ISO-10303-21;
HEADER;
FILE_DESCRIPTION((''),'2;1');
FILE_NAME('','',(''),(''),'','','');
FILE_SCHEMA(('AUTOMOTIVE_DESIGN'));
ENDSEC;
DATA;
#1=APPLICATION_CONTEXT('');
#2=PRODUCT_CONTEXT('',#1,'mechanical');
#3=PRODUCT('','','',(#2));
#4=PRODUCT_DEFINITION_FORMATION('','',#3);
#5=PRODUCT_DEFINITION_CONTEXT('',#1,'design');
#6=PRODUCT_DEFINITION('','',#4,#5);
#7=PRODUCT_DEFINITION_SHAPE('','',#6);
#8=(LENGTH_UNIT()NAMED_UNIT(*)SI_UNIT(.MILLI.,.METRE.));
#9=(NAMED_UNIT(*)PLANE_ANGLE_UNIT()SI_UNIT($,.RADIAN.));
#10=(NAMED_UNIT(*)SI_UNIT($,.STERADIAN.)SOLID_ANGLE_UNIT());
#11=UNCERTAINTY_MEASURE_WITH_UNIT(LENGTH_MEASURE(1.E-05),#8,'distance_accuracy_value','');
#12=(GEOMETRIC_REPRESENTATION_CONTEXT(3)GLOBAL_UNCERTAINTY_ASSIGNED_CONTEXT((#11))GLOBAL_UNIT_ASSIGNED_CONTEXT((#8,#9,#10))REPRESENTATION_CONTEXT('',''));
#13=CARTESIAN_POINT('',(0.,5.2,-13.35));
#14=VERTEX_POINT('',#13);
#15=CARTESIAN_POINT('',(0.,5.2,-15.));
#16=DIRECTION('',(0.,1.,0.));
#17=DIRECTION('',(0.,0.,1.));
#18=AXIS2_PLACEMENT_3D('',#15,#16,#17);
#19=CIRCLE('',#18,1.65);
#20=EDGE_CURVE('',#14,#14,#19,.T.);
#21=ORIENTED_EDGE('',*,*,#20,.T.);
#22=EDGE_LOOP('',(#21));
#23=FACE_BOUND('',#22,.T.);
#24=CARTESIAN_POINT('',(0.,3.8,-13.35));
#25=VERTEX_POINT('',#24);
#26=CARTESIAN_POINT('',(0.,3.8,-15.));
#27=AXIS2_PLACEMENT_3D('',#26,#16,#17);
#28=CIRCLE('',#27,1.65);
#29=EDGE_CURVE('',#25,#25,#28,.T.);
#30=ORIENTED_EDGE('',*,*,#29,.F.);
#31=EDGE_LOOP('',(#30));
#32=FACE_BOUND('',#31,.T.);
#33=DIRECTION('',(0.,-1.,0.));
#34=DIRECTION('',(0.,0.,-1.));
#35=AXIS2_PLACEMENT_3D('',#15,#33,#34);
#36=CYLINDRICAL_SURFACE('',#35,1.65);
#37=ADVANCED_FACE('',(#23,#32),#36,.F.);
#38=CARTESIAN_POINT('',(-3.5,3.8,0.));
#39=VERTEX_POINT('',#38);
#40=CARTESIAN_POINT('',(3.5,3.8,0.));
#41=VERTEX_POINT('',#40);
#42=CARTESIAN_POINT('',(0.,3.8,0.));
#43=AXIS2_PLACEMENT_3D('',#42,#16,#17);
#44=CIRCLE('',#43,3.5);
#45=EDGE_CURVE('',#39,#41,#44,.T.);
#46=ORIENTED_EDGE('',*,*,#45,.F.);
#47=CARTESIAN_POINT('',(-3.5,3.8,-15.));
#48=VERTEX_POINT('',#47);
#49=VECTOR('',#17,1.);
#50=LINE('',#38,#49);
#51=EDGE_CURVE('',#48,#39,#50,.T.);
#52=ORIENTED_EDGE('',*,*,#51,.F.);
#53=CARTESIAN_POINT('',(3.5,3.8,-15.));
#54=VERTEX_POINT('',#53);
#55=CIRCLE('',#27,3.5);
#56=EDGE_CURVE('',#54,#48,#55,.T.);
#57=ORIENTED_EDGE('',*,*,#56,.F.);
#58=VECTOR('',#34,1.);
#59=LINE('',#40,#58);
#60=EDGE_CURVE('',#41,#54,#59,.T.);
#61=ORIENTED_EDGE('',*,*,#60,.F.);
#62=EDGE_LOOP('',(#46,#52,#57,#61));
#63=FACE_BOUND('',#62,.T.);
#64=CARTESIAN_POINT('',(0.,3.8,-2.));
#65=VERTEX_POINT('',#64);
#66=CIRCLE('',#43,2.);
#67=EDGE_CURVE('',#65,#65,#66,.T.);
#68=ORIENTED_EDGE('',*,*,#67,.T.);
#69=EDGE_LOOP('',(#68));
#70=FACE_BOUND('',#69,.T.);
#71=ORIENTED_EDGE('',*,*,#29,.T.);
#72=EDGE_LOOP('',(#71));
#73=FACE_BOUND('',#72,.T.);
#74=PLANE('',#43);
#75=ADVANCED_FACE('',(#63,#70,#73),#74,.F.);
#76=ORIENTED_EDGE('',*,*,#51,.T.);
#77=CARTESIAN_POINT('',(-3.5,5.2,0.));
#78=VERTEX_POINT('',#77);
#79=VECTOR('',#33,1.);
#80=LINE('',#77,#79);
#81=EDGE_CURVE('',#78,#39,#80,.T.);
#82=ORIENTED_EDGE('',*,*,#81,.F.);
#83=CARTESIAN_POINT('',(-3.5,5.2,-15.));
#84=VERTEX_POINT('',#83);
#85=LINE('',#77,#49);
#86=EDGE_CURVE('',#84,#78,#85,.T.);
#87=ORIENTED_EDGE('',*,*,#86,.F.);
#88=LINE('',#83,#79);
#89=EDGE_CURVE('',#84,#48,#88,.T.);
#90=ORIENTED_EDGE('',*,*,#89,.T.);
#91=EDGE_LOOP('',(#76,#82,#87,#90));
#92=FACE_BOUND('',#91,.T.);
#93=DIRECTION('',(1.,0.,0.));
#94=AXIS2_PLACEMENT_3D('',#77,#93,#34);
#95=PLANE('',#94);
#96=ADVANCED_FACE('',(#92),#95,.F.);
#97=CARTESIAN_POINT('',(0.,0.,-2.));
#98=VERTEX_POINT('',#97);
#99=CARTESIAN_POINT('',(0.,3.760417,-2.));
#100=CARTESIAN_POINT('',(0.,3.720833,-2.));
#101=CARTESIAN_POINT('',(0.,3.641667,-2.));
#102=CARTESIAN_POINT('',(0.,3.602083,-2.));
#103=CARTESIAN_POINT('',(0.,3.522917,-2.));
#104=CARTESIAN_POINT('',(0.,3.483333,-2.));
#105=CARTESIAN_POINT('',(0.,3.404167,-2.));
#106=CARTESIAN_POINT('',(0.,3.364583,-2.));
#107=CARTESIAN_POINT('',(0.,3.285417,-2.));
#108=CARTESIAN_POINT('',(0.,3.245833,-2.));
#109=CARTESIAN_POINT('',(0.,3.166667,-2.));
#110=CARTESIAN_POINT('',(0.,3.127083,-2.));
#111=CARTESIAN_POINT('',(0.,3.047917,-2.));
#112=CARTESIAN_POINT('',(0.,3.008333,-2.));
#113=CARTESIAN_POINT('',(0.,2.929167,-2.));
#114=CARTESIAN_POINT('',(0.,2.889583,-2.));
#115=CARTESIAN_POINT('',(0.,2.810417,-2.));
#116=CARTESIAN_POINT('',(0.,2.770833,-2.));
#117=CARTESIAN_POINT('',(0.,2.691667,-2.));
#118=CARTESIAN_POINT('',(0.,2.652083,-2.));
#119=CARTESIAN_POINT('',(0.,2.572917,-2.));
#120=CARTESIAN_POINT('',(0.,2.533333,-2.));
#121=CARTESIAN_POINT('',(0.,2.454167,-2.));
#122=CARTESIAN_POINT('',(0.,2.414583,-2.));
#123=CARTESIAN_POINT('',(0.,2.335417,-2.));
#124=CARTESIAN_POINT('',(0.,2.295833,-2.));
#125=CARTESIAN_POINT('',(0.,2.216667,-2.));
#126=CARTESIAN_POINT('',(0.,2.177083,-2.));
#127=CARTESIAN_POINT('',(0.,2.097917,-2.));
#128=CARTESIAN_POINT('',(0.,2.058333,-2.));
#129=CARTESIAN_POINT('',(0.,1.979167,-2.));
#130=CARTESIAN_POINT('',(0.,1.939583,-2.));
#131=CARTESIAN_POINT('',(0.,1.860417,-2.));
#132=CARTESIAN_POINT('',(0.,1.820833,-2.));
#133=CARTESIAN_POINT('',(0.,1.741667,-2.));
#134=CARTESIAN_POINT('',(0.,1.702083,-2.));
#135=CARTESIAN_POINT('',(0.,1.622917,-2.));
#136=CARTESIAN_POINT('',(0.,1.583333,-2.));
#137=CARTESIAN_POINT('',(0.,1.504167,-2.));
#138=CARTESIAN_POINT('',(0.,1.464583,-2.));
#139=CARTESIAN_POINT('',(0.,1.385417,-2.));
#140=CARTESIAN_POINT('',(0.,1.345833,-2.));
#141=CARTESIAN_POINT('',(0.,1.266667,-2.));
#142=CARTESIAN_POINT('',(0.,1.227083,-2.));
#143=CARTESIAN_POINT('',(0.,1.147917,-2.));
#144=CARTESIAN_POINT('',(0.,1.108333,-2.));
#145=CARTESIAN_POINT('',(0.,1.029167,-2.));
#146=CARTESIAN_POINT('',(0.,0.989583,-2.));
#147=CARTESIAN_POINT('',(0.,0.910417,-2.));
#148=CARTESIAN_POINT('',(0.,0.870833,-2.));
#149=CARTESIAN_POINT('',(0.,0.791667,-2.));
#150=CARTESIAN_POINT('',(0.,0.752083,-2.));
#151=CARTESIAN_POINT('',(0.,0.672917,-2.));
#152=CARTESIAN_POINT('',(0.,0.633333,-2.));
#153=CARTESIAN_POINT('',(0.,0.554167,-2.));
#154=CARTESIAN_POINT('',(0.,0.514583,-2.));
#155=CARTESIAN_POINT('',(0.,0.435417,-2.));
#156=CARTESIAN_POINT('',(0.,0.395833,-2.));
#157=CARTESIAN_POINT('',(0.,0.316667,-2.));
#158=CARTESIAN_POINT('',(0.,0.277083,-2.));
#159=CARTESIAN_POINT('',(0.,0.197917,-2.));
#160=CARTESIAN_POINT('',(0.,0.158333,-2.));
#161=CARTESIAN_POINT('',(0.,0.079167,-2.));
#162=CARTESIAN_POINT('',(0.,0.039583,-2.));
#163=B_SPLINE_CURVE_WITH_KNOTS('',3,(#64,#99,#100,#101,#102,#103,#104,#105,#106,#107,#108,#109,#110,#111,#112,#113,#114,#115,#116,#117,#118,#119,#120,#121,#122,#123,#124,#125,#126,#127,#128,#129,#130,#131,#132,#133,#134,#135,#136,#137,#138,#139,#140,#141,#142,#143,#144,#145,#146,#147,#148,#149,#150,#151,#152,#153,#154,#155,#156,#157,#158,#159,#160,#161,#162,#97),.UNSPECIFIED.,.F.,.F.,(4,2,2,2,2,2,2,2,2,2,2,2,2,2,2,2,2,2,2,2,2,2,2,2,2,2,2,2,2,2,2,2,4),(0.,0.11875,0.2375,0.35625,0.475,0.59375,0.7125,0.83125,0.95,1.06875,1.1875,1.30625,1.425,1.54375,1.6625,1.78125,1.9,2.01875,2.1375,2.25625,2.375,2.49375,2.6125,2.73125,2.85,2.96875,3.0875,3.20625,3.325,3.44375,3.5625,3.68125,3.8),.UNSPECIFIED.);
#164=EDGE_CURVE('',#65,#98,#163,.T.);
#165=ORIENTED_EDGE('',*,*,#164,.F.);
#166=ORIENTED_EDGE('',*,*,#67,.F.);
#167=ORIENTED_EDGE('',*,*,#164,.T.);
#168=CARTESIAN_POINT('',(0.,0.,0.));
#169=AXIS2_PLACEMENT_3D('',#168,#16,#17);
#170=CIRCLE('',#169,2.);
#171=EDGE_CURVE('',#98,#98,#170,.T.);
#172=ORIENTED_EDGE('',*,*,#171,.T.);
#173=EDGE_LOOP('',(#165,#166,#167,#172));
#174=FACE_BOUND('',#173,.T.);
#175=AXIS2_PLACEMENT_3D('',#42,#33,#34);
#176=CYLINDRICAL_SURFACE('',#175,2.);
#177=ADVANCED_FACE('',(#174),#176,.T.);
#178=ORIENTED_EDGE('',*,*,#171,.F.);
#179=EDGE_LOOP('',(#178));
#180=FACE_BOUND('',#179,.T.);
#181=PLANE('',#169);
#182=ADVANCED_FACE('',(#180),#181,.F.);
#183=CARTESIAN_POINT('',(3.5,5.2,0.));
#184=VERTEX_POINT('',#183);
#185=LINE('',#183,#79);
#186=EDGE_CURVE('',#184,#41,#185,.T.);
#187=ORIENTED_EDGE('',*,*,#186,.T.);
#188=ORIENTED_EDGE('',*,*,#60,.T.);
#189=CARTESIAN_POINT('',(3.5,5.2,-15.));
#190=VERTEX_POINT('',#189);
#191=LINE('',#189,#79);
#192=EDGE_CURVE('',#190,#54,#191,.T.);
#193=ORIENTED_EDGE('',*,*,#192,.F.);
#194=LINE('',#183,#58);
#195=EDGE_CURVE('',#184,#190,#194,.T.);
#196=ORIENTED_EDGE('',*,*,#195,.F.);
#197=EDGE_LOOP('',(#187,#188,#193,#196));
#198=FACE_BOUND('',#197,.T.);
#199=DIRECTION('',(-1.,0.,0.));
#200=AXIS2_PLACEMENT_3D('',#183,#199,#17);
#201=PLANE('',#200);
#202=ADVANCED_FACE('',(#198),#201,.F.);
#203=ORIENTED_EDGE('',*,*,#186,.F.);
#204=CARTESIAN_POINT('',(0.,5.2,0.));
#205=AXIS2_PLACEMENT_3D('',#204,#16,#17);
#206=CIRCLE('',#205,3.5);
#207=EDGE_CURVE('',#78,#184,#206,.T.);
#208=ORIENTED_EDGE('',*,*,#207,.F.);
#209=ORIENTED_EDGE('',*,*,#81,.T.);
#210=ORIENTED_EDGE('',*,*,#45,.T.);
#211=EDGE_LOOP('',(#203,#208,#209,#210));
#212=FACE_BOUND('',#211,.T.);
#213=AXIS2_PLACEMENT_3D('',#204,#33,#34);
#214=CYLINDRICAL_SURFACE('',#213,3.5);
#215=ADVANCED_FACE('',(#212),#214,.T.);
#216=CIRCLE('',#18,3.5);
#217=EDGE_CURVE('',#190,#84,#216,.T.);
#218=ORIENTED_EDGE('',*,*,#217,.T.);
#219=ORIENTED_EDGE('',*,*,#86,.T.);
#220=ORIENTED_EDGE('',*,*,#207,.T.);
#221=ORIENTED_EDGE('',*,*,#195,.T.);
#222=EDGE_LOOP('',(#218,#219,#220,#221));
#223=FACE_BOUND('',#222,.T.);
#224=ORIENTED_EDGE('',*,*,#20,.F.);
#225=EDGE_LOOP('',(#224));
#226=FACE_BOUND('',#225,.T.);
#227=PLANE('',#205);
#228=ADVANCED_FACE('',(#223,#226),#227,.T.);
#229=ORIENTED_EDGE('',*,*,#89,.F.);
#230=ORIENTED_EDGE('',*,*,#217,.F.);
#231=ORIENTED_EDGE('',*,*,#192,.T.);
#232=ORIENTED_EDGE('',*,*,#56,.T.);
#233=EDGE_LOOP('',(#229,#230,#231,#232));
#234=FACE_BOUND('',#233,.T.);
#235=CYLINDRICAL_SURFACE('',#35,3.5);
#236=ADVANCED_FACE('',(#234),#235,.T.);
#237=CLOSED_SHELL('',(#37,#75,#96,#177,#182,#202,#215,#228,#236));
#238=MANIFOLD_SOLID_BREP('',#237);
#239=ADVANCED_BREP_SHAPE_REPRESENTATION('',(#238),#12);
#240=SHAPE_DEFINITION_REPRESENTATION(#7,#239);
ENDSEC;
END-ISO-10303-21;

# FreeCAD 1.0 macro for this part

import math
import FreeCAD as App
import Part
import Sketcher
Q = App.Units.Quantity

doc = App.newDocument("Part")
body = doc.addObject("PartDesign::Body", "Body")

sketch1 = body.newObject("Sketcher::SketchObject", "Sketch")
sketch1.AttachmentSupport = (doc.getObject("XZ_Plane"), [""])
sketch1.MapMode = "FlatFace"
sketch1.addGeometry(Part.Circle(App.Vector(0, 0, 0), App.Vector(0, 0, 1), 2), False)
sketch1.addConstraint([
    Sketcher.Constraint("Coincident", 0, 3, -1, 1),
    Sketcher.Constraint("Diameter", 0, Q("4 mm")),
])
pad1 = body.newObject("PartDesign::Pad", "Pad")
pad1.Profile = sketch1
pad1.Length = 3.8
pad1.Reversed = True

sketch2 = body.newObject("Sketcher::SketchObject", "Sketch001")
sketch2.AttachmentSupport = (doc.getObject("XZ_Plane"), [""])
sketch2.MapMode = "FlatFace"
sketch2.AttachmentOffset = App.Placement(App.Vector(0, 0, -3.8), App.Rotation())
sketch2.addGeometry([
    Part.LineSegment(App.Vector(-3.5, -15, 0), App.Vector(-3.5, 0, 0)),
    Part.ArcOfCircle(Part.Circle(App.Vector(0, 0, 0), App.Vector(0, 0, 1), 3.5), math.radians(0), math.radians(180)),
    Part.LineSegment(App.Vector(3.5, 0, 0), App.Vector(3.5, -15, 0)),
    Part.ArcOfCircle(Part.Circle(App.Vector(0, -15, 0), App.Vector(0, 0, 1), 3.5), math.radians(180), math.radians(360)),
    Part.Circle(App.Vector(0, -15, 0), App.Vector(0, 0, 1), 1.6),
], False)
sketch2.addConstraint([
    Sketcher.Constraint("Tangent", 0, 2, 1, 2),
    Sketcher.Constraint("Tangent", 1, 1, 2, 1),
    Sketcher.Constraint("Tangent", 2, 2, 3, 2),
    Sketcher.Constraint("Tangent", 3, 1, 0, 1),
    Sketcher.Constraint("Vertical", 0),
    Sketcher.Constraint("Vertical", 2),
    Sketcher.Constraint("Coincident", 1, 3, -1, 1),
    Sketcher.Constraint("Coincident", 4, 3, 3, 3),
    Sketcher.Constraint("Diameter", 4, Q("3.3 mm")),
    Sketcher.Constraint("Radius", 1, Q("3.5 mm")),
    Sketcher.Constraint("DistanceY", 0, 1, 0, 2, Q("15 mm")),
])
pad2 = body.newObject("PartDesign::Pad", "Pad001")
pad2.Profile = sketch2
pad2.Length = 1.4
pad2.Reversed = True

doc.recompute()
